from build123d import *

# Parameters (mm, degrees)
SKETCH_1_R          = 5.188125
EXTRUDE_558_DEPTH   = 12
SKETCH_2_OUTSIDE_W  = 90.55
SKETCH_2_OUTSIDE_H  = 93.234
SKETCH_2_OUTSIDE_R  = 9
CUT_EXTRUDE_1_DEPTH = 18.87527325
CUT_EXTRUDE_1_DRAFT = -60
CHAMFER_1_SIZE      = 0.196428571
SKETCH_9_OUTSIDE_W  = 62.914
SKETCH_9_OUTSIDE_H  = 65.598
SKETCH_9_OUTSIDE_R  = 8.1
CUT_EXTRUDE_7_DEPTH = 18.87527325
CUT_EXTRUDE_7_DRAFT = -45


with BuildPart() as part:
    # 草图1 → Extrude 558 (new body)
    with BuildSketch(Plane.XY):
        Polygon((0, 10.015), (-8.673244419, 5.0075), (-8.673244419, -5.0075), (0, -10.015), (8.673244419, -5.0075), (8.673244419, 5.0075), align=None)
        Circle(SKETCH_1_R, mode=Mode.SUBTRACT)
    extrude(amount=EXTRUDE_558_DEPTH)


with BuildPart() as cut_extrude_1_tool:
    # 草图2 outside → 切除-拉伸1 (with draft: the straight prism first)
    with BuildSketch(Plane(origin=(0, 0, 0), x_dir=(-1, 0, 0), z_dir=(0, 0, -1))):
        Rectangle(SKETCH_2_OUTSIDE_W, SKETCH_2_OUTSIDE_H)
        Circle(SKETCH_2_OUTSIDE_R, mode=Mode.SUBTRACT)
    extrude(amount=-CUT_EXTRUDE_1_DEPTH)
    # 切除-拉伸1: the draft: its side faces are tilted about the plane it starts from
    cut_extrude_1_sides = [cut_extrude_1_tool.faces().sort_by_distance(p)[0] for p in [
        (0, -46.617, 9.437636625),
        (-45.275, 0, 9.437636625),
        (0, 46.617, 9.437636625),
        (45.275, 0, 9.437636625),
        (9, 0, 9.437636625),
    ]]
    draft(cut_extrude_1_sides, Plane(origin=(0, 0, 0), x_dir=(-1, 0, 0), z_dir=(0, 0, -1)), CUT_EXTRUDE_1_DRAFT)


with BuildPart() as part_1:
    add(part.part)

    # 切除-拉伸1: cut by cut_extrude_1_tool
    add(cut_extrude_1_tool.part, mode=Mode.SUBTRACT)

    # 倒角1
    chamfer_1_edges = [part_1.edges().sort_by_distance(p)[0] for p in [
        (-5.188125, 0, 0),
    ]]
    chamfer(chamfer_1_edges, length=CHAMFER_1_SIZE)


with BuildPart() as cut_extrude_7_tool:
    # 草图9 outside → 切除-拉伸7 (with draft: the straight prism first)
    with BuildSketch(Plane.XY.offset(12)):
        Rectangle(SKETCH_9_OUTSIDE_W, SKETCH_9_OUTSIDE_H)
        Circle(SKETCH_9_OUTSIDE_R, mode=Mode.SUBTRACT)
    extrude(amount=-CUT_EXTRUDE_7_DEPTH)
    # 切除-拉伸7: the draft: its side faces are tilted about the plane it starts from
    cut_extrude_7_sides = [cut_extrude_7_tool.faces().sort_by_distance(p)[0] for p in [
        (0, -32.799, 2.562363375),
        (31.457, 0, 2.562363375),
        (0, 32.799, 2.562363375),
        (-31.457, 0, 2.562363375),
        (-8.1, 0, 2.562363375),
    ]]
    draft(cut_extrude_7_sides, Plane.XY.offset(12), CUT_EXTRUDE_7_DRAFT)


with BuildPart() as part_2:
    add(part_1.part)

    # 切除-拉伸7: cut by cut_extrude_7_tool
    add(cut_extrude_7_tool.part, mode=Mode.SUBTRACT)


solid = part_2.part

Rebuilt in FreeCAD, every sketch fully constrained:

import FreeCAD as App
import Part
import Sketcher
Q = App.Units.Quantity


def edges_at(feature, points):
    """Names of the edges that pass closest to the given points."""
    edges = feature.Shape.Edges
    near = lambda p: min(range(len(edges)), key=lambda i: edges[i].distToShape(Part.Vertex(*p))[0])
    return sorted({f"Edge{near(p) + 1}" for p in points})


def faces_at(feature, points):
    """Names of the faces that lie closest to the given points."""
    faces = feature.Shape.Faces
    near = lambda p: min(range(len(faces)), key=lambda i: faces[i].distToShape(Part.Vertex(*p))[0])
    return sorted({f"Face{near(p) + 1}" for p in points})


def add_polygon(sketch, points):
    """Adds a closed chain of lines whose ends are joined by coincident constraints."""
    first, n = sketch.GeometryCount, len(points)
    for a, b in zip(points, points[1:] + points[:1]):
        sketch.addGeometry(Part.LineSegment(App.Vector(*a, 0), App.Vector(*b, 0)), False)
    for i in range(n):
        sketch.addConstraint(Sketcher.Constraint("Coincident", first + i, 2, first + (i + 1) % n, 1))

doc = App.newDocument("Part")
body = doc.addObject("PartDesign::Body", "Body")

# Sketch on XY plane
sketch1 = body.newObject("Sketcher::SketchObject", "Sketch")
sketch1.AttachmentSupport = (doc.getObject("XY_Plane"), [""])
sketch1.MapMode = "FlatFace"
add_polygon(sketch1, [(0, 10), (-9, 5), (-9, -5), (0, -10), (9, -5), (9, 5)])  # lines 0-5
sketch1.addGeometry(Part.Circle(App.Vector(0, 0, 0), App.Vector(0, 0, 1), 5), False)  # 6
sketch1.addConstraint([
    Sketcher.Constraint("Vertical", 1),
    Sketcher.Constraint("Vertical", 4),
    Sketcher.Constraint("Coincident", 6, 3, -1, 1),
    Sketcher.Constraint("Symmetric", 0, 2, 3, 2, -1, 1),
    Sketcher.Constraint("Symmetric", 2, 2, 5, 2, -1, 1),
    Sketcher.Constraint("PointOnObject", 2, 2, -2),
    Sketcher.Constraint("Parallel", 2, 5),
    Sketcher.Constraint("Horizontal", 1, 2, 3, 2),
    Sketcher.Constraint("Angle", 0, Q("-150 deg")),
    Sketcher.Constraint("Diameter", 6, Q("10.37625 mm")),
    Sketcher.Constraint("DistanceY", 1, 2, 1, 1, Q("10.015 mm")),
    Sketcher.Constraint("Distance", 0, Q("10.015 mm")),
])
pad1 = body.newObject("PartDesign::Pad", "Pad")
pad1.Profile = sketch1
pad1.Length = 12
body2 = doc.addObject("PartDesign::Body", "Body001")

# Sketch on XY plane
sketch2 = body2.newObject("Sketcher::SketchObject", "Sketch001")
sketch2.AttachmentSupport = (doc.getObject("XY_Plane001"), [""])
sketch2.MapMode = "FlatFace"
add_polygon(sketch2, [(45, 47), (45, -47), (-45, -47), (-45, 47)])  # lines 0-3
sketch2.addGeometry(Part.Circle(App.Vector(0, 0, 0), App.Vector(0, 0, 1), 9), False)  # 4
sketch2.addConstraint([
    Sketcher.Constraint("Vertical", 0),
    Sketcher.Constraint("Horizontal", 1),
    Sketcher.Constraint("Vertical", 2),
    Sketcher.Constraint("Horizontal", 3),
    Sketcher.Constraint("Coincident", 4, 3, -1, 1),
    Sketcher.Constraint("Symmetric", 0, 2, 2, 2, -1, 1),
    Sketcher.Constraint("Diameter", 4, Q("18 mm")),
    Sketcher.Constraint("DistanceX", 1, 2, 1, 1, Q("90.55 mm")),
    Sketcher.Constraint("DistanceY", 0, 2, 0, 1, Q("93.234 mm")),
])
pad2 = body2.newObject("PartDesign::Pad", "Pad001")
pad2.Profile = sketch2
pad2.Length = 18.875273
doc.recompute()

draft = body2.newObject("PartDesign::Draft", "Draft")
draft.Base = (pad2, faces_at(pad2, [
    (0, -46.617, 9.438),
    (-45.275, 0, 9.438),
    (0, 46.617, 9.438),
    (45.275, 0, 9.438),
    (9, 0, 9.438),
]))
draft.NeutralPlane = (doc.getObject("XY_Plane001"), [""])
draft.Angle = 60
draft.Reversed = False
doc.recompute()

boolean = body.newObject("PartDesign::Boolean", "Boolean")
boolean.Type = "Cut"
boolean.addObjects([body2])
doc.recompute()

chamfer = body.newObject("PartDesign::Chamfer", "Chamfer")
chamfer.Base = (boolean, edges_at(boolean, [(-5.188, 0, 0)]))
chamfer.Size = 0.196429
body3 = doc.addObject("PartDesign::Body", "Body002")

# Sketch on XY plane
sketch3 = body3.newObject("Sketcher::SketchObject", "Sketch002")
sketch3.AttachmentSupport = (doc.getObject("XY_Plane002"), [""])
sketch3.MapMode = "FlatFace"
sketch3.AttachmentOffset = App.Placement(App.Vector(0, 0, 12), App.Rotation())
add_polygon(sketch3, [(-31, 33), (-31, -33), (31, -33), (31, 33)])  # lines 0-3
sketch3.addGeometry(Part.Circle(App.Vector(0, 0, 0), App.Vector(0, 0, 1), 8), False)  # 4
sketch3.addConstraint([
    Sketcher.Constraint("Vertical", 0),
    Sketcher.Constraint("Horizontal", 1),
    Sketcher.Constraint("Vertical", 2),
    Sketcher.Constraint("Horizontal", 3),
    Sketcher.Constraint("Coincident", 4, 3, -1, 1),
    Sketcher.Constraint("Symmetric", 0, 2, 2, 2, -1, 1),
    Sketcher.Constraint("Diameter", 4, Q("16.2 mm")),
    Sketcher.Constraint("DistanceX", 1, 1, 1, 2, Q("62.914 mm")),
    Sketcher.Constraint("DistanceY", 0, 2, 0, 1, Q("65.598 mm")),
])
pad3 = body3.newObject("PartDesign::Pad", "Pad002")
pad3.Profile = sketch3
pad3.Length = 18.875273
pad3.Reversed = True
doc.recompute()

datumplane = body3.newObject("PartDesign::Plane", "DatumPlane")
datumplane.AttachmentSupport = (doc.getObject("XY_Plane002"), [""])
datumplane.MapMode = "FlatFace"
datumplane.AttachmentOffset = App.Placement(App.Vector(0, 0, 12), App.Rotation())
draft2 = body3.newObject("PartDesign::Draft", "Draft001")
draft2.Base = (pad3, faces_at(pad3, [
    (0, -32.799, 2.562),
    (31.457, 0, 2.562),
    (0, 32.799, 2.562),
    (-31.457, 0, 2.562),
    (-8.1, 0, 2.562),
]))
draft2.NeutralPlane = (datumplane, [""])
draft2.Angle = 45
draft2.Reversed = True
doc.recompute()

boolean2 = body.newObject("PartDesign::Boolean", "Boolean001")
boolean2.Type = "Cut"
boolean2.addObjects([body3])

doc.recompute()
